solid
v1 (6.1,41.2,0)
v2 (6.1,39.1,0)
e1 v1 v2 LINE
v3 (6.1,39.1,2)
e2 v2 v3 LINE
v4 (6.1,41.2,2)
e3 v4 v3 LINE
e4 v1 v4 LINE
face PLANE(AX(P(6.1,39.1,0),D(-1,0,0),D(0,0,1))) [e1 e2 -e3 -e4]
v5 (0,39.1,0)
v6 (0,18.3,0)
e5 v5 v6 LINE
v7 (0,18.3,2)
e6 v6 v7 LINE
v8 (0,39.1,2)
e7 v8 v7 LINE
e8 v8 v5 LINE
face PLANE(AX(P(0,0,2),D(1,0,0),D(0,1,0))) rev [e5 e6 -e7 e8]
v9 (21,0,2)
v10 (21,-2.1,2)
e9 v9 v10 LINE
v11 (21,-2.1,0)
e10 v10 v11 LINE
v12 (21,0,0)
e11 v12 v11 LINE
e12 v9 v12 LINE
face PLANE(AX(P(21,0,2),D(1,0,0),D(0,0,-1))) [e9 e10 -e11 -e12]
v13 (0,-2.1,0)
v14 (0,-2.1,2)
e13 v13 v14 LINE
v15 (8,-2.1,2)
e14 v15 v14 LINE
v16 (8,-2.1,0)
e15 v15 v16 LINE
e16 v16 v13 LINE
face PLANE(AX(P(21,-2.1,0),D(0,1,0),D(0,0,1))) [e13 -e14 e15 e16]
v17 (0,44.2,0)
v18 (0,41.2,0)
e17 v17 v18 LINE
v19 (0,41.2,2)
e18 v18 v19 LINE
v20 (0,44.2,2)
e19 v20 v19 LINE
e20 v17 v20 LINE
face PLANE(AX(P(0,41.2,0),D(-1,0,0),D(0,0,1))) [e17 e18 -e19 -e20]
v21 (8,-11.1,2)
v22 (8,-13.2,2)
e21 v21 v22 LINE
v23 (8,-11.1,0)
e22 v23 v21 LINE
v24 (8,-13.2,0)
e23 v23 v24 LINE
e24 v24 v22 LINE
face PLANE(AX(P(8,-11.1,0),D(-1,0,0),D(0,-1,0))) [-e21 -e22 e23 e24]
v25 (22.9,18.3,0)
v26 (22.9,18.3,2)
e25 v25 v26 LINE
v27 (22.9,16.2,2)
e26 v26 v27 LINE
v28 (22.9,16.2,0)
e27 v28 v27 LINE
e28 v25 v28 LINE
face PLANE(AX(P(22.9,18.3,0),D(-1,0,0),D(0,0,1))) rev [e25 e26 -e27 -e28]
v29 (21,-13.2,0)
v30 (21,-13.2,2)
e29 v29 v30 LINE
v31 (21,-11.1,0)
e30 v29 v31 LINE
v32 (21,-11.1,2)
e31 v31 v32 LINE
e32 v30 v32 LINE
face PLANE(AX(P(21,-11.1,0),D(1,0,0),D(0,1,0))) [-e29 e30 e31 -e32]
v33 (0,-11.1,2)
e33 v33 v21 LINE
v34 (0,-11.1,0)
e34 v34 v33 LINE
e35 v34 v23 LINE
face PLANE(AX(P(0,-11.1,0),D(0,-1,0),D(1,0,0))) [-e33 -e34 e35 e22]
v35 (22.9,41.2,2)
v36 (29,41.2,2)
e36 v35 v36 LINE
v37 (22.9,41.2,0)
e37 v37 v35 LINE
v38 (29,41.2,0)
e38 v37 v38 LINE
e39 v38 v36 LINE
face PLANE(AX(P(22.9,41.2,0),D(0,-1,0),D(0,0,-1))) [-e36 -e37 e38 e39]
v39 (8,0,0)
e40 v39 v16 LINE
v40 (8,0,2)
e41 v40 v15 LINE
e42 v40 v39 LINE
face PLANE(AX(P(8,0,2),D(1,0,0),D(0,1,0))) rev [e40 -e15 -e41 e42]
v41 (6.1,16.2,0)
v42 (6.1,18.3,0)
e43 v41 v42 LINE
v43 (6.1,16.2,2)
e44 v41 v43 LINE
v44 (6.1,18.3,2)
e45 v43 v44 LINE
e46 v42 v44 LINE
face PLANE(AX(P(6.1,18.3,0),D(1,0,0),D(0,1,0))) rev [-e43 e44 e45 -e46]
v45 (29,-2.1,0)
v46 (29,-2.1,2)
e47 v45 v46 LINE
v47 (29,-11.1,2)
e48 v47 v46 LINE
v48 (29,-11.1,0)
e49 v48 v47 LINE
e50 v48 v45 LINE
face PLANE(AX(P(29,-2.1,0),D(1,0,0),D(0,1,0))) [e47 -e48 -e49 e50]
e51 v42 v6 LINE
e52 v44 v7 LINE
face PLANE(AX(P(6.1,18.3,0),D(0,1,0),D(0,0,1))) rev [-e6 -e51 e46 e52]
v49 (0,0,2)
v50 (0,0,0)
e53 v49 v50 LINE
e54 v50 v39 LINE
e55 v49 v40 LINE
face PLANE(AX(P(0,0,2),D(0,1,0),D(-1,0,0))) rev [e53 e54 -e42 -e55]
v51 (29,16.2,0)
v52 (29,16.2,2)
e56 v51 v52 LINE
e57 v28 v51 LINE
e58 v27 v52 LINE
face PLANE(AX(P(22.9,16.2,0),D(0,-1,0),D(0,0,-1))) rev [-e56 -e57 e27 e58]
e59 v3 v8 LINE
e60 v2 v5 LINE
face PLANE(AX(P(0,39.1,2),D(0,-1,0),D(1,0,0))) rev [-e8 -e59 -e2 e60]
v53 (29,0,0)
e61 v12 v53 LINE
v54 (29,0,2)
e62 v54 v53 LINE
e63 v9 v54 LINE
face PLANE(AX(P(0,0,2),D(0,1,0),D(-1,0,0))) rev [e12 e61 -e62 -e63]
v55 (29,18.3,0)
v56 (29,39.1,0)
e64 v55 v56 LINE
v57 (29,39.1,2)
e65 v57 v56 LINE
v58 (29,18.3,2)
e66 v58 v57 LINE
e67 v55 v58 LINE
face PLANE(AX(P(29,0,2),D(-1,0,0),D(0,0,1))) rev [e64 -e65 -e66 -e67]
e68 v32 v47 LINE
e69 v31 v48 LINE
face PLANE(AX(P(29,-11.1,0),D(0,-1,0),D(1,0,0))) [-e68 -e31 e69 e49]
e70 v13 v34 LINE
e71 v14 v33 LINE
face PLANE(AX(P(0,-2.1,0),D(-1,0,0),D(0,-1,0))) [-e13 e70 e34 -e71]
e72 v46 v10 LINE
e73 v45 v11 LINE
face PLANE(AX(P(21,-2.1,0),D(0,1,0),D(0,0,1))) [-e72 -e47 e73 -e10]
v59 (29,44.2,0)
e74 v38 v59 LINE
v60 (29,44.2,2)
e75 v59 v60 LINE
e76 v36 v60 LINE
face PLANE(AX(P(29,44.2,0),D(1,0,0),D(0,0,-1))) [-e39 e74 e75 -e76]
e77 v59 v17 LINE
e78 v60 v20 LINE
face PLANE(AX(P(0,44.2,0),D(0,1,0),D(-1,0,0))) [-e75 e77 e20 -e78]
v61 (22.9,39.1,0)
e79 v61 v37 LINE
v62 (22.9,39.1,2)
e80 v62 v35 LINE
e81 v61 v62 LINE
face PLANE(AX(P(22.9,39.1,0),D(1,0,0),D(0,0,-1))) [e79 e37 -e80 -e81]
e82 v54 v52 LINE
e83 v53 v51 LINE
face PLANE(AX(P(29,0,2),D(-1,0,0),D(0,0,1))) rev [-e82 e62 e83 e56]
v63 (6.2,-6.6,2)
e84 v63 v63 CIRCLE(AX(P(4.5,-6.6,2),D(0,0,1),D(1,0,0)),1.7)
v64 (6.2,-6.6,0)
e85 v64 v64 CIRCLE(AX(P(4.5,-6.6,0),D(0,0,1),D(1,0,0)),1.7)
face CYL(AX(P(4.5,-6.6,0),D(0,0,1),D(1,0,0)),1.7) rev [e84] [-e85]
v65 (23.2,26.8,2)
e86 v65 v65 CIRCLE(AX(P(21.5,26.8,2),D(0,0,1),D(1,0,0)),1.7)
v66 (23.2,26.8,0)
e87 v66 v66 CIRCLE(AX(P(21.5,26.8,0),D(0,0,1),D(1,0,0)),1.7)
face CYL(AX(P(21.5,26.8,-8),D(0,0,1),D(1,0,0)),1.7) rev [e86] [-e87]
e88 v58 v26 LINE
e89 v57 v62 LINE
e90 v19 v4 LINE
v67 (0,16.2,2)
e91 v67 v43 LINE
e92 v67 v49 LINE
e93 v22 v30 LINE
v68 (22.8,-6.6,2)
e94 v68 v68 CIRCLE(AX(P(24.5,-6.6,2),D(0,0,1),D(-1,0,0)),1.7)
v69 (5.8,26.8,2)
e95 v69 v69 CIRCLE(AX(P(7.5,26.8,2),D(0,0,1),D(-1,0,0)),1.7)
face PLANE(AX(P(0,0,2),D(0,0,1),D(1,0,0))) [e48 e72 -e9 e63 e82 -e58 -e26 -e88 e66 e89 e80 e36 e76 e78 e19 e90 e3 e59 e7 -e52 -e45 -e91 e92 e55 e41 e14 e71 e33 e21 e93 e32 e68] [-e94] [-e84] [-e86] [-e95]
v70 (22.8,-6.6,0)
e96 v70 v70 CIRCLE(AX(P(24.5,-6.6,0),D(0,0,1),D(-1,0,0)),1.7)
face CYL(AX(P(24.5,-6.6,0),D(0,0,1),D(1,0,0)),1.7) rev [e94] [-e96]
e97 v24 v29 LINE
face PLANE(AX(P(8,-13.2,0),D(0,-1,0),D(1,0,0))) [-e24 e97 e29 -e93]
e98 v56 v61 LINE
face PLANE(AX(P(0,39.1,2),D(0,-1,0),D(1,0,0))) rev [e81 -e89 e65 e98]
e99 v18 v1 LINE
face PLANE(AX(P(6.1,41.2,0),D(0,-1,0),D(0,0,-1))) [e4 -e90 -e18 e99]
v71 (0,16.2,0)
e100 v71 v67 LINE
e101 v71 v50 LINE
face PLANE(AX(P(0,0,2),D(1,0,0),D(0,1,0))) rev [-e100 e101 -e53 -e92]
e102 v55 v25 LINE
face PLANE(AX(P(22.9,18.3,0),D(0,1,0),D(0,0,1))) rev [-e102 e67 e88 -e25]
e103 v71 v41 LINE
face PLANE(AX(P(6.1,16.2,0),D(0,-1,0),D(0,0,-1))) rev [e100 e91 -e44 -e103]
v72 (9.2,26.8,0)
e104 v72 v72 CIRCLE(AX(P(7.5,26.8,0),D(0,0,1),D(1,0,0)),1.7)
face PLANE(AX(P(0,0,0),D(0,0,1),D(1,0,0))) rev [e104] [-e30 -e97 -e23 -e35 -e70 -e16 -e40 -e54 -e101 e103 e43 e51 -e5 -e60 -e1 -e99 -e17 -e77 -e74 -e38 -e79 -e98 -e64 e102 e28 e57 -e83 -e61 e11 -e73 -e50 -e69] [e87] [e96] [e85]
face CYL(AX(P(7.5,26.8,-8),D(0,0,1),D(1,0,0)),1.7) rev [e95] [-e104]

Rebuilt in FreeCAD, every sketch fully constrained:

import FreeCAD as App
import Part
import Sketcher
Q = App.Units.Quantity


def add_polygon(sketch, points):
    """Adds a closed chain of lines whose ends are joined by coincident constraints."""
    first, n = sketch.GeometryCount, len(points)
    for a, b in zip(points, points[1:] + points[:1]):
        sketch.addGeometry(Part.LineSegment(App.Vector(*a, 0), App.Vector(*b, 0)), False)
    for i in range(n):
        sketch.addConstraint(Sketcher.Constraint("Coincident", first + i, 2, first + (i + 1) % n, 1))

doc = App.newDocument("Part")
params = doc.addObject("Spreadsheet::Sheet", "Params")
for row, (alias, value) in enumerate([
    ("sketch1_width", "8 mm"),
    ("sketch1_width2", "13 mm"),
    ("sketch1_height", "39.1 mm"),
    ("sketch1_height2", "2.1 mm"),
    ("pad1_length", "2 mm"),
    ("sketch2_width", "6.1 mm"),
    ("sketch2_height", "2.1 mm"),
    ("pocket1_length", "2 mm"),
    ("sketch3_width", "13 mm"),
    ("sketch3_height", "2.1 mm"),
    ("pad2_length", "2 mm"),
    ("sketch4_diameter", "3.4 mm"),
    ("sketch4_width", "8 mm"),
    ("sketch4_width2", "13 mm"),
    ("sketch4_height", "9 mm"),
    ("sketch4_height2", "2.1 mm"),
    ("pad3_length", "2 mm"),
    ("sketch5_width", "16.8 mm"),
    ("sketch5_height", "2.1 mm"),
    ("pad4_length", "2 mm"),
    ("sketch6_diameter", "3.4 mm"),
    ("pocket2_length", "10 mm"),
    ("sketch7_width", "16.8 mm"),
    ("sketch7_height", "2.1 mm"),
    ("pocket3_length", "10 mm"),
    ("sketch8_width", "29 mm"),
    ("sketch8_height", "3 mm"),
    ("sketch8_width2", "16.8 mm"),
    ("sketch8_height2", "2.1 mm"),
    ("pad5_length", "2 mm"),
], start=1):
    params.set(f"A{row}", alias)
    params.set(f"B{row}", "=" + value)
    params.setAlias(f"B{row}", alias)

body = doc.addObject("PartDesign::Body", "Body")

sketch1 = body.newObject("Sketcher::SketchObject", "Sketch")
sketch1.AttachmentSupport = (doc.getObject("XY_Plane"), [""])
sketch1.MapMode = "FlatFace"
add_polygon(sketch1, [(0, 39.1), (0, 0), (8, 0), (8, -2.1), (21, -2.1), (21, 0), (29, 0), (29, 39.1)])
add_polygon(sketch1, [(8, 11.1), (21, 11.1), (21, 9), (8, 9)])
sketch1.addConstraint(Sketcher.Constraint("Vertical", 0))
sketch1.addConstraint(Sketcher.Constraint("Horizontal", 1))
sketch1.addConstraint(Sketcher.Constraint("Vertical", 2))
sketch1.addConstraint(Sketcher.Constraint("Horizontal", 3))
sketch1.addConstraint(Sketcher.Constraint("Vertical", 4))
sketch1.addConstraint(Sketcher.Constraint("Horizontal", 5))
sketch1.addConstraint(Sketcher.Constraint("Vertical", 6))
sketch1.addConstraint(Sketcher.Constraint("Horizontal", 7))
sketch1.addConstraint(Sketcher.Constraint("Horizontal", 8))
sketch1.addConstraint(Sketcher.Constraint("Vertical", 9))
sketch1.addConstraint(Sketcher.Constraint("Horizontal", 10))
sketch1.addConstraint(Sketcher.Constraint("Vertical", 11))
sketch1.addConstraint(Sketcher.Constraint("Coincident", 0, 2, -1, 1))
sketch1.addConstraint(Sketcher.Constraint("PointOnObject", 4, 2, -1))
sketch1.addConstraint(Sketcher.Constraint("Vertical", 4, 2, 8, 2))
sketch1.addConstraint(Sketcher.Constraint("Vertical", 2, 2, 10, 2))
sketch1.addConstraint(Sketcher.Constraint("Equal", 1, 5))
sketch1.addConstraint(Sketcher.Constraint("Equal", 4, 9))
sketch1.addConstraint(Sketcher.Constraint("DistanceX", 1, 1, 1, 2, Q("8 mm")))
sketch1.addConstraint(Sketcher.Constraint("DistanceX", 3, 1, 3, 2, Q("13 mm")))
sketch1.addConstraint(Sketcher.Constraint("DistanceY", 0, 2, 0, 1, Q("39.1 mm")))
sketch1.addConstraint(Sketcher.Constraint("DistanceY", 2, 2, 2, 1, Q("2.1 mm")))
sketch1.addConstraint(Sketcher.Constraint("DistanceY", -1, 1, 9, 2, Q("9 mm")))
sketch1.setExpression("Constraints[30]", "Params.sketch1_width")
sketch1.setExpression("Constraints[31]", "Params.sketch1_width2")
sketch1.setExpression("Constraints[32]", "Params.sketch1_height")
sketch1.setExpression("Constraints[33]", "Params.sketch1_height2")
pad1 = body.newObject("PartDesign::Pad", "Pad")
pad1.Profile = sketch1
pad1.setExpression("Length", "Params.pad1_length")

sketch2 = body.newObject("Sketcher::SketchObject", "Sketch001")
sketch2.AttachmentSupport = (doc.getObject("XY_Plane"), [""])
sketch2.MapMode = "FlatFace"
sketch2.AttachmentOffset = App.Placement(App.Vector(0, 0, 2), App.Rotation())
add_polygon(sketch2, [(0, 18.3), (0, 16.2), (6.1, 16.2), (6.1, 18.3)])
add_polygon(sketch2, [(22.9, 18.3), (22.9, 16.2), (29, 16.2), (29, 18.3)])
sketch2.addConstraint(Sketcher.Constraint("Vertical", 0))
sketch2.addConstraint(Sketcher.Constraint("Horizontal", 1))
sketch2.addConstraint(Sketcher.Constraint("Vertical", 2))
sketch2.addConstraint(Sketcher.Constraint("Horizontal", 3))
sketch2.addConstraint(Sketcher.Constraint("Vertical", 4))
sketch2.addConstraint(Sketcher.Constraint("Horizontal", 5))
sketch2.addConstraint(Sketcher.Constraint("Vertical", 6))
sketch2.addConstraint(Sketcher.Constraint("Horizontal", 7))
sketch2.addConstraint(Sketcher.Constraint("PointOnObject", 0, 2, -2))
sketch2.addConstraint(Sketcher.Constraint("Horizontal", 1, 2, 4, 2))
sketch2.addConstraint(Sketcher.Constraint("Horizontal", 3, 2, 6, 2))
sketch2.addConstraint(Sketcher.Constraint("Equal", 3, 5))
sketch2.addConstraint(Sketcher.Constraint("DistanceX", 1, 1, 1, 2, Q("6.1 mm")))
sketch2.addConstraint(Sketcher.Constraint("DistanceY", 0, 2, 0, 1, Q("2.1 mm")))
sketch2.addConstraint(Sketcher.Constraint("DistanceX", -1, 1, 5, 2, Q("29 mm")))
sketch2.addConstraint(Sketcher.Constraint("DistanceY", -1, 1, 0, 2, Q("16.2 mm")))
sketch2.setExpression("Constraints[20]", "Params.sketch2_width")
sketch2.setExpression("Constraints[21]", "Params.sketch2_height")
pocket1 = body.newObject("PartDesign::Pocket", "Pocket")
pocket1.Profile = sketch2
pocket1.setExpression("Length", "Params.pocket1_length")

sketch3 = body.newObject("Sketcher::SketchObject", "Sketch002")
sketch3.AttachmentSupport = (doc.getObject("XY_Plane"), [""])
sketch3.MapMode = "FlatFace"
sketch3.AttachmentOffset = App.Placement(App.Vector(0, 0, 2), App.Rotation())
add_polygon(sketch3, [(8, 11.1), (8, 9), (21, 9), (21, 11.1)])
sketch3.addConstraint(Sketcher.Constraint("Vertical", 0))
sketch3.addConstraint(Sketcher.Constraint("Horizontal", 1))
sketch3.addConstraint(Sketcher.Constraint("Vertical", 2))
sketch3.addConstraint(Sketcher.Constraint("Horizontal", 3))
sketch3.addConstraint(Sketcher.Constraint("DistanceX", 1, 1, 1, 2, Q("13 mm")))
sketch3.addConstraint(Sketcher.Constraint("DistanceY", 0, 2, 0, 1, Q("2.1 mm")))
sketch3.addConstraint(Sketcher.Constraint("DistanceX", -1, 1, 0, 2, Q("8 mm")))
sketch3.addConstraint(Sketcher.Constraint("DistanceY", -1, 1, 0, 2, Q("9 mm")))
sketch3.setExpression("Constraints[8]", "Params.sketch3_width")
sketch3.setExpression("Constraints[9]", "Params.sketch3_height")
pad2 = body.newObject("PartDesign::Pad", "Pad001")
pad2.Profile = sketch3
pad2.setExpression("Length", "Params.pad2_length")
pad2.Reversed = True

sketch4 = body.newObject("Sketcher::SketchObject", "Sketch003")
sketch4.AttachmentSupport = (doc.getObject("XY_Plane"), [""])
sketch4.MapMode = "FlatFace"
sketch4.AttachmentOffset = App.Placement(App.Vector(0, 0, 2), App.Rotation())
add_polygon(sketch4, [(0, -2.1), (0, -11.1), (8, -11.1), (8, -13.2), (21, -13.2), (21, -11.1), (29, -11.1), (29, -2.1)])
sketch4.addGeometry(Part.Circle(App.Vector(4.5, -6.6, 0), App.Vector(0, 0, 1), 1.7), False)
sketch4.addGeometry(Part.Circle(App.Vector(24.5, -6.6, 0), App.Vector(0, 0, 1), 1.7), False)
sketch4.addConstraint(Sketcher.Constraint("Vertical", 0))
sketch4.addConstraint(Sketcher.Constraint("Horizontal", 1))
sketch4.addConstraint(Sketcher.Constraint("Vertical", 2))
sketch4.addConstraint(Sketcher.Constraint("Horizontal", 3))
sketch4.addConstraint(Sketcher.Constraint("Vertical", 4))
sketch4.addConstraint(Sketcher.Constraint("Horizontal", 5))
sketch4.addConstraint(Sketcher.Constraint("Vertical", 6))
sketch4.addConstraint(Sketcher.Constraint("Horizontal", 7))
sketch4.addConstraint(Sketcher.Constraint("Equal", 8, 9))
sketch4.addConstraint(Sketcher.Constraint("PointOnObject", 0, 2, -2))
sketch4.addConstraint(Sketcher.Constraint("Horizontal", 8, 3, 9, 3))
sketch4.addConstraint(Sketcher.Constraint("Horizontal", 1, 2, 4, 2))
sketch4.addConstraint(Sketcher.Constraint("Equal", 1, 5))
sketch4.addConstraint(Sketcher.Constraint("Diameter", 8, Q("3.4 mm")))
sketch4.addConstraint(Sketcher.Constraint("DistanceX", 1, 1, 1, 2, Q("8 mm")))
sketch4.addConstraint(Sketcher.Constraint("DistanceX", 3, 1, 3, 2, Q("13 mm")))
sketch4.addConstraint(Sketcher.Constraint("DistanceY", 0, 2, 0, 1, Q("9 mm")))
sketch4.addConstraint(Sketcher.Constraint("DistanceY", 2, 2, 2, 1, Q("2.1 mm")))
sketch4.addConstraint(Sketcher.Constraint("DistanceX", 8, 3, 9, 3, Q("20 mm")))
sketch4.addConstraint(Sketcher.Constraint("DistanceX", -1, 1, 8, 3, Q("4.5 mm")))
sketch4.addConstraint(Sketcher.Constraint("DistanceY", 8, 3, -1, 1, Q("6.6 mm")))
sketch4.addConstraint(Sketcher.Constraint("DistanceY", 0, 2, -1, 1, Q("11.1 mm")))
sketch4.setExpression("Constraints[21]", "Params.sketch4_diameter")
sketch4.setExpression("Constraints[22]", "Params.sketch4_width")
sketch4.setExpression("Constraints[23]", "Params.sketch4_width2")
sketch4.setExpression("Constraints[24]", "Params.sketch4_height")
sketch4.setExpression("Constraints[25]", "Params.sketch4_height2")
pad3 = body.newObject("PartDesign::Pad", "Pad002")
pad3.Profile = sketch4
pad3.setExpression("Length", "Params.pad3_length")
pad3.Reversed = True

sketch5 = body.newObject("Sketcher::SketchObject", "Sketch004")
sketch5.AttachmentSupport = (doc.getObject("XY_Plane"), [""])
sketch5.MapMode = "FlatFace"
sketch5.AttachmentOffset = App.Placement(App.Vector(0, 0, 2), App.Rotation())
add_polygon(sketch5, [(6.1, 41.2), (6.1, 39.1), (22.9, 39.1), (22.9, 41.2)])
sketch5.addConstraint(Sketcher.Constraint("Vertical", 0))
sketch5.addConstraint(Sketcher.Constraint("Horizontal", 1))
sketch5.addConstraint(Sketcher.Constraint("Vertical", 2))
sketch5.addConstraint(Sketcher.Constraint("Horizontal", 3))
sketch5.addConstraint(Sketcher.Constraint("DistanceX", 1, 1, 1, 2, Q("16.8 mm")))
sketch5.addConstraint(Sketcher.Constraint("DistanceY", 0, 2, 0, 1, Q("2.1 mm")))
sketch5.addConstraint(Sketcher.Constraint("DistanceX", -1, 1, 0, 2, Q("6.1 mm")))
sketch5.addConstraint(Sketcher.Constraint("DistanceY", -1, 1, 0, 2, Q("39.1 mm")))
sketch5.setExpression("Constraints[8]", "Params.sketch5_width")
sketch5.setExpression("Constraints[9]", "Params.sketch5_height")
pad4 = body.newObject("PartDesign::Pad", "Pad003")
pad4.Profile = sketch5
pad4.setExpression("Length", "Params.pad4_length")
pad4.Reversed = True

sketch6 = body.newObject("Sketcher::SketchObject", "Sketch005")
sketch6.AttachmentSupport = (doc.getObject("XY_Plane"), [""])
sketch6.MapMode = "FlatFace"
sketch6.AttachmentOffset = App.Placement(App.Vector(0, 0, 2), App.Rotation())
sketch6.addGeometry(Part.Circle(App.Vector(21.5, 26.8, 0), App.Vector(0, 0, 1), 1.7), False)
sketch6.addGeometry(Part.Circle(App.Vector(7.5, 26.8, 0), App.Vector(0, 0, 1), 1.7), False)
sketch6.addConstraint(Sketcher.Constraint("Equal", 0, 1))
sketch6.addConstraint(Sketcher.Constraint("Horizontal", 0, 3, 1, 3))
sketch6.addConstraint(Sketcher.Constraint("Diameter", 0, Q("3.4 mm")))
sketch6.addConstraint(Sketcher.Constraint("DistanceX", 1, 3, 0, 3, Q("14 mm")))
sketch6.addConstraint(Sketcher.Constraint("DistanceX", -1, 1, 0, 3, Q("21.5 mm")))
sketch6.addConstraint(Sketcher.Constraint("DistanceY", -1, 1, 0, 3, Q("26.8 mm")))
sketch6.setExpression("Constraints[2]", "Params.sketch6_diameter")
pocket2 = body.newObject("PartDesign::Pocket", "Pocket001")
pocket2.Profile = sketch6
pocket2.setExpression("Length", "Params.pocket2_length")

sketch7 = body.newObject("Sketcher::SketchObject", "Sketch006")
sketch7.AttachmentSupport = (doc.getObject("XY_Plane"), [""])
sketch7.MapMode = "FlatFace"
sketch7.AttachmentOffset = App.Placement(App.Vector(0, 0, 2), App.Rotation())
add_polygon(sketch7, [(6.1, 41.2), (6.1, 39.1), (22.9, 39.1), (22.9, 41.2)])
sketch7.addConstraint(Sketcher.Constraint("Vertical", 0))
sketch7.addConstraint(Sketcher.Constraint("Horizontal", 1))
sketch7.addConstraint(Sketcher.Constraint("Vertical", 2))
sketch7.addConstraint(Sketcher.Constraint("Horizontal", 3))
sketch7.addConstraint(Sketcher.Constraint("DistanceX", 1, 1, 1, 2, Q("16.8 mm")))
sketch7.addConstraint(Sketcher.Constraint("DistanceY", 0, 2, 0, 1, Q("2.1 mm")))
sketch7.addConstraint(Sketcher.Constraint("DistanceX", -1, 1, 0, 2, Q("6.1 mm")))
sketch7.addConstraint(Sketcher.Constraint("DistanceY", -1, 1, 0, 2, Q("39.1 mm")))
sketch7.setExpression("Constraints[8]", "Params.sketch7_width")
sketch7.setExpression("Constraints[9]", "Params.sketch7_height")
pocket3 = body.newObject("PartDesign::Pocket", "Pocket002")
pocket3.Profile = sketch7
pocket3.setExpression("Length", "Params.pocket3_length")

sketch8 = body.newObject("Sketcher::SketchObject", "Sketch007")
sketch8.AttachmentSupport = (doc.getObject("XY_Plane"), [""])
sketch8.MapMode = "FlatFace"
sketch8.AttachmentOffset = App.Placement(App.Vector(0, 0, 2), App.Rotation())
add_polygon(sketch8, [(6.1, 41.2), (6.1, 39.1), (22.9, 39.1), (22.9, 41.2), (29, 41.2), (29, 44.2), (0, 44.2), (0, 41.2)])
sketch8.addConstraint(Sketcher.Constraint("Vertical", 0))
sketch8.addConstraint(Sketcher.Constraint("Horizontal", 1))
sketch8.addConstraint(Sketcher.Constraint("Vertical", 2))
sketch8.addConstraint(Sketcher.Constraint("Horizontal", 3))
sketch8.addConstraint(Sketcher.Constraint("Vertical", 4))
sketch8.addConstraint(Sketcher.Constraint("Horizontal", 5))
sketch8.addConstraint(Sketcher.Constraint("Vertical", 6))
sketch8.addConstraint(Sketcher.Constraint("Horizontal", 7))
sketch8.addConstraint(Sketcher.Constraint("PointOnObject", 5, 2, -2))
sketch8.addConstraint(Sketcher.Constraint("Horizontal", 3, 2, 6, 2))
sketch8.addConstraint(Sketcher.Constraint("Equal", 3, 7))
sketch8.addConstraint(Sketcher.Constraint("DistanceX", 5, 2, 5, 1, Q("29 mm")))
sketch8.addConstraint(Sketcher.Constraint("DistanceY", 4, 1, 4, 2, Q("3 mm")))
sketch8.addConstraint(Sketcher.Constraint("DistanceX", 1, 1, 1, 2, Q("16.8 mm")))
sketch8.addConstraint(Sketcher.Constraint("DistanceY", 0, 2, 0, 1, Q("2.1 mm")))
sketch8.addConstraint(Sketcher.Constraint("DistanceY", -1, 1, 0, 2, Q("39.1 mm")))
sketch8.setExpression("Constraints[19]", "Params.sketch8_width")
sketch8.setExpression("Constraints[20]", "Params.sketch8_height")
sketch8.setExpression("Constraints[21]", "Params.sketch8_width2")
sketch8.setExpression("Constraints[22]", "Params.sketch8_height2")
pad5 = body.newObject("PartDesign::Pad", "Pad004")
pad5.Profile = sketch8
pad5.setExpression("Length", "Params.pad5_length")
pad5.Reversed = True

doc.recompute()
